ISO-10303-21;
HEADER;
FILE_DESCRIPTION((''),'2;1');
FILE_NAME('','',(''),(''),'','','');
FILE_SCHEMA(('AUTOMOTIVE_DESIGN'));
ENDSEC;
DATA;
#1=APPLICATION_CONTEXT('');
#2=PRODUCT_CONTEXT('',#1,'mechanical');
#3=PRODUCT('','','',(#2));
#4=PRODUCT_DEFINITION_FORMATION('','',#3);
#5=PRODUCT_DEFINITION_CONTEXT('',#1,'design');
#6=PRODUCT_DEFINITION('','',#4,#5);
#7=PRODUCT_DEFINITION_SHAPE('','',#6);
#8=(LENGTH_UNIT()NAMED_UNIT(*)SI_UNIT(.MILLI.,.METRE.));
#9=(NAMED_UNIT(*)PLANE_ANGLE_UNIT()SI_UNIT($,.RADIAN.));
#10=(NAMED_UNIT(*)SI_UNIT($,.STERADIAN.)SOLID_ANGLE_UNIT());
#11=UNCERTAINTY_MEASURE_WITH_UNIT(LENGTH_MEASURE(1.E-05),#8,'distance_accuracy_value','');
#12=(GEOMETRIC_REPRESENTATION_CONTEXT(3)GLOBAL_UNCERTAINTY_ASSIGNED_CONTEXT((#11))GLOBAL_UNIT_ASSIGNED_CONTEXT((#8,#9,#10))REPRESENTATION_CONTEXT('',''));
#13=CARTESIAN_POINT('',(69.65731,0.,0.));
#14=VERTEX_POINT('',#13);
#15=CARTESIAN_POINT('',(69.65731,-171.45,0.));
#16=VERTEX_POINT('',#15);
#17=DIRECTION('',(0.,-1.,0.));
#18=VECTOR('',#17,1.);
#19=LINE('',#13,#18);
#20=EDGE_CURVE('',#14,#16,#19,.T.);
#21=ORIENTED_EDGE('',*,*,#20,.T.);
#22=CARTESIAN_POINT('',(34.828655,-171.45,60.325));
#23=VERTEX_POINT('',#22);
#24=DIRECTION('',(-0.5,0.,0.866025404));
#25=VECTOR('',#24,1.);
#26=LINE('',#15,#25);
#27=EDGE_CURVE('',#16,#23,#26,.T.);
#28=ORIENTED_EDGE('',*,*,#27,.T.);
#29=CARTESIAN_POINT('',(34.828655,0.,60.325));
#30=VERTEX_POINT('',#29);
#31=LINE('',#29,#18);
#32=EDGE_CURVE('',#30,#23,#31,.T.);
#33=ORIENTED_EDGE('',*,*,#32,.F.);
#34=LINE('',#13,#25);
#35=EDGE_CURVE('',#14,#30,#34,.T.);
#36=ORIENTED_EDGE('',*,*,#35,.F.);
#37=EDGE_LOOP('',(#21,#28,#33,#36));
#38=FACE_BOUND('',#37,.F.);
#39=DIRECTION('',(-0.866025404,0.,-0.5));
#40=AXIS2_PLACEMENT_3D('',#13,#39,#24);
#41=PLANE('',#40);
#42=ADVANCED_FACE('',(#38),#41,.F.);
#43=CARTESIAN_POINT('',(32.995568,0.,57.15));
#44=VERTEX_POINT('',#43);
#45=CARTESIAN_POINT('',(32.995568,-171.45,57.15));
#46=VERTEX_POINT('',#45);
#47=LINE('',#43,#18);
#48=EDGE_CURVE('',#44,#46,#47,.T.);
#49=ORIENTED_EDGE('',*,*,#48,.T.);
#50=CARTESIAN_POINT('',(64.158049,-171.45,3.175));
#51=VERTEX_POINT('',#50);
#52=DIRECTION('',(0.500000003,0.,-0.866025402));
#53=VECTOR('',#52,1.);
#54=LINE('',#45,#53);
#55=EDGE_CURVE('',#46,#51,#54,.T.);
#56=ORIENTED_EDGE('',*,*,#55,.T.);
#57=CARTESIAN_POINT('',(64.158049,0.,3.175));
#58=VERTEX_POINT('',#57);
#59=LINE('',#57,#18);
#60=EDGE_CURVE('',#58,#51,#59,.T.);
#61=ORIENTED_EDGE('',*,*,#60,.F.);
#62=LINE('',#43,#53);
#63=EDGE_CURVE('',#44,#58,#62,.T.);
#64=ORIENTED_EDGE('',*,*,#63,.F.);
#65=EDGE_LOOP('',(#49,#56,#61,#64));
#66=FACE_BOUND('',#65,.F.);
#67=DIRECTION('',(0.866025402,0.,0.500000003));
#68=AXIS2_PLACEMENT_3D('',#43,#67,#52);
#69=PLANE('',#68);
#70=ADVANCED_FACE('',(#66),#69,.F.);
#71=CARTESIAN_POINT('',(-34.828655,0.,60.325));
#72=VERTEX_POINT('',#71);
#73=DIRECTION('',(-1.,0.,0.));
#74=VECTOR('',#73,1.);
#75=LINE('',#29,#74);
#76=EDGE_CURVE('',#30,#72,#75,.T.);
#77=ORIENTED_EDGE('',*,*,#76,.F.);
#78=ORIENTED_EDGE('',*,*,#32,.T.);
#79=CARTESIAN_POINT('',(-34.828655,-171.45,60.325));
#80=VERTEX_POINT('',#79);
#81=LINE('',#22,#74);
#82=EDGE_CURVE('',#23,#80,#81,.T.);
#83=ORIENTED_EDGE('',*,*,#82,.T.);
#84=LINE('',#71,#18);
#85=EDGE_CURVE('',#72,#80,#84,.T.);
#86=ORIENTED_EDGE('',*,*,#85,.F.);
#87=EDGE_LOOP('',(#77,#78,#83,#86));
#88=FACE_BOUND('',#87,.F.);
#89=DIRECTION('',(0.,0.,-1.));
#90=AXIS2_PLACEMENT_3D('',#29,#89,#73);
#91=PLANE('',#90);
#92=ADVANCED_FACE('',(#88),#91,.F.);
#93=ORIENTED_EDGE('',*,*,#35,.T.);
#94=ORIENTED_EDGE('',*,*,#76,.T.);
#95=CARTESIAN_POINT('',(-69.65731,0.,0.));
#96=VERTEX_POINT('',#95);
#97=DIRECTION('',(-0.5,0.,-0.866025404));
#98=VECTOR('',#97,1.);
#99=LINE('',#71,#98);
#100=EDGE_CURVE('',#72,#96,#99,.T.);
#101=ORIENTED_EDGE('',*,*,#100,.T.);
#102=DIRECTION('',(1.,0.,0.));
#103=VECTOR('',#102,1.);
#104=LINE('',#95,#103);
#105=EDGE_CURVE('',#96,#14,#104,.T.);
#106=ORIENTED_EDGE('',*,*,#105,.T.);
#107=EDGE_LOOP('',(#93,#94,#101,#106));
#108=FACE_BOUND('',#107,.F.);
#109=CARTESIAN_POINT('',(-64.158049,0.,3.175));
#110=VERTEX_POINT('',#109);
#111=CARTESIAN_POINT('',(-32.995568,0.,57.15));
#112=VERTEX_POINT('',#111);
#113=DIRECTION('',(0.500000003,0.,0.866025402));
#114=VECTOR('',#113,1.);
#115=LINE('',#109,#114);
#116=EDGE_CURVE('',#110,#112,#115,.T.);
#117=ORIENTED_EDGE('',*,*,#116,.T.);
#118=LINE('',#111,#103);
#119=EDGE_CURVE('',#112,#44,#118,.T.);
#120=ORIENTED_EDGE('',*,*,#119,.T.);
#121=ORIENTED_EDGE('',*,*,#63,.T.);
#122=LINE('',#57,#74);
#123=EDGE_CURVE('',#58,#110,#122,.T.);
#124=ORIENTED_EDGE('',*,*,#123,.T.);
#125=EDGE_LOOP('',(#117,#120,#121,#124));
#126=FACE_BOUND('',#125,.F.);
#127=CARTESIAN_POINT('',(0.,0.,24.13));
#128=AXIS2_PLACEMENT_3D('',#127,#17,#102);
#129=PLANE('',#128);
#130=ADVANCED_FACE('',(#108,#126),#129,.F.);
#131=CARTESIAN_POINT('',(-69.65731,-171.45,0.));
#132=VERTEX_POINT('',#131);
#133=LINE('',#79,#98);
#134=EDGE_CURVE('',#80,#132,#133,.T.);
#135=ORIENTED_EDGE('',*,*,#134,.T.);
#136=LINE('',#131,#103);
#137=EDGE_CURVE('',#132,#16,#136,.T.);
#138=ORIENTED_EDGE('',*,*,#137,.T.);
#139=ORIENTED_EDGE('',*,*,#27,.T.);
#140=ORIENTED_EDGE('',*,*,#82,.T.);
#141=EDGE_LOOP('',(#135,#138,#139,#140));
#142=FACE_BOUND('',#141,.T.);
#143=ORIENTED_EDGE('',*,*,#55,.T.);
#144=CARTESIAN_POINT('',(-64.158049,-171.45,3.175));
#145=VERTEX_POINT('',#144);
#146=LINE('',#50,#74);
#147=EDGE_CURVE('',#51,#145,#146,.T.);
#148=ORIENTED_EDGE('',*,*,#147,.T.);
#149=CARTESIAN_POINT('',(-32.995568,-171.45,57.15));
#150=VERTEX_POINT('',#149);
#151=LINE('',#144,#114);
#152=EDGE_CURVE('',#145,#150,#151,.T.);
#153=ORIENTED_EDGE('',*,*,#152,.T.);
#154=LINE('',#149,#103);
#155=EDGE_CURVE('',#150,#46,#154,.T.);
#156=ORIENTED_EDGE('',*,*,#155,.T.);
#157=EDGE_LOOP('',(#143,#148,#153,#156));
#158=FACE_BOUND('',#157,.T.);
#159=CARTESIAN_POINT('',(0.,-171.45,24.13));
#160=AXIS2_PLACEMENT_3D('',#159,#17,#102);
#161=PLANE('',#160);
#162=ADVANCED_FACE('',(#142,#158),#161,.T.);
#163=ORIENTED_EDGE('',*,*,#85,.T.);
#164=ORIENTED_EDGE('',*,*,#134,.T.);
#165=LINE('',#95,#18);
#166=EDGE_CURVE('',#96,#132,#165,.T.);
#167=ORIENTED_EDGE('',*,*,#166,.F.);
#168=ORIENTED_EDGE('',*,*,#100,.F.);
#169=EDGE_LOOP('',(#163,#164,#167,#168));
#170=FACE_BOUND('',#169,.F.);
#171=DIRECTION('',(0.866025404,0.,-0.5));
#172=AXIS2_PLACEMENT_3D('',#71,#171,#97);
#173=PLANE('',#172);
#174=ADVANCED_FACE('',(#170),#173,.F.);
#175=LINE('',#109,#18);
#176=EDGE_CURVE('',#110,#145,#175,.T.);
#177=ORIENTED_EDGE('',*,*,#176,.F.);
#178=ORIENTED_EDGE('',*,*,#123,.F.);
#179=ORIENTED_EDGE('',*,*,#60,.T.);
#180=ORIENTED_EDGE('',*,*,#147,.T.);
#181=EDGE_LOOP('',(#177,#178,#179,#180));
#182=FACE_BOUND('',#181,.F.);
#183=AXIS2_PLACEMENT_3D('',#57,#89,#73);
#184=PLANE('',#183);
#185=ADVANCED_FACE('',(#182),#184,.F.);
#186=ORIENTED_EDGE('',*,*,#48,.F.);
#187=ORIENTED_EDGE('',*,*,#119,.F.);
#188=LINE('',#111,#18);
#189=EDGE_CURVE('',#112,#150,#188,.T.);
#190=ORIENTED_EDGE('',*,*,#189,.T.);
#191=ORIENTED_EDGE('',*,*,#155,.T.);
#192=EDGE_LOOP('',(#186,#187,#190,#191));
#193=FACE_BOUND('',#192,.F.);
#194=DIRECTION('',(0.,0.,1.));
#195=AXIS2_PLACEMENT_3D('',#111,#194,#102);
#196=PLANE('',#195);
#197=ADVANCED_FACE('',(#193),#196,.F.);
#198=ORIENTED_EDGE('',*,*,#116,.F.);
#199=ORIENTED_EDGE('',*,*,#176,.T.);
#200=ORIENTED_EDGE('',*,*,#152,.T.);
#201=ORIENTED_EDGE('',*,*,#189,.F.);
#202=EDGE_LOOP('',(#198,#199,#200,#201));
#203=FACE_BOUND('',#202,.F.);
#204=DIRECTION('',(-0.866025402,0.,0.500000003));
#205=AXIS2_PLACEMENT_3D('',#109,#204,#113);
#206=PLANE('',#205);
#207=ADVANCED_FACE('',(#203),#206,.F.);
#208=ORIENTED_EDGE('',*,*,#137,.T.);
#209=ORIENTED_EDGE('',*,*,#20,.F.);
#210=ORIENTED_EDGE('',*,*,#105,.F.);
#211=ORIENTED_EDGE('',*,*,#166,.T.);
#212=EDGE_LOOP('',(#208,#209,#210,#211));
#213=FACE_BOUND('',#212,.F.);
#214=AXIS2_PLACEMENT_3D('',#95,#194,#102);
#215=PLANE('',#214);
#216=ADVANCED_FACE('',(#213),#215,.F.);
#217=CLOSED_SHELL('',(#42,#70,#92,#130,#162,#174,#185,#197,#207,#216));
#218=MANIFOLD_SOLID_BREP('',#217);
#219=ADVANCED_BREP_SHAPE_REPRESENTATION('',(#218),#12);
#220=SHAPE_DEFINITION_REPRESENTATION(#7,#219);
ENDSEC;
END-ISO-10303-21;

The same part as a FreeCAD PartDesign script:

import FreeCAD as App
import Part
import Sketcher
Q = App.Units.Quantity


def add_polygon(sketch, points):
    """Adds a closed chain of lines whose ends are joined by coincident constraints."""
    first, n = sketch.GeometryCount, len(points)
    for a, b in zip(points, points[1:] + points[:1]):
        sketch.addGeometry(Part.LineSegment(App.Vector(*a, 0), App.Vector(*b, 0)), False)
    for i in range(n):
        sketch.addConstraint(Sketcher.Constraint("Coincident", first + i, 2, first + (i + 1) % n, 1))

doc = App.newDocument("Part")
params = doc.addObject("Spreadsheet::Sheet", "Params")
for row, (alias, value) in enumerate([
    ("pad1_length", "6.75 in"),
], start=1):
    params.set(f"A{row}", alias)
    params.set(f"B{row}", "=" + value)
    params.setAlias(f"B{row}", alias)

body = doc.addObject("PartDesign::Body", "Body")

# Sketch on XZ plane
sketch1 = body.newObject("Sketcher::SketchObject", "Sketch")
sketch1.AttachmentSupport = (doc.getObject("XZ_Plane"), [""])
sketch1.MapMode = "FlatFace"
add_polygon(sketch1, [(35, 60), (-35, 60), (-70, 0), (70, 0)])  # lines 0-3
add_polygon(sketch1, [(64, 3), (-64, 3), (-33, 57), (33, 57)])  # lines 4-7
sketch1.addConstraint(Sketcher.Constraint("Horizontal", 0))
sketch1.addConstraint(Sketcher.Constraint("Horizontal", 2))
sketch1.addConstraint(Sketcher.Constraint("Horizontal", 4))
sketch1.addConstraint(Sketcher.Constraint("Horizontal", 6))
sketch1.addConstraint(Sketcher.Constraint("Symmetric", 1, 2, 2, 2, -1, 1))
sketch1.addConstraint(Sketcher.Constraint("Parallel", 1, 5))
sketch1.addConstraint(Sketcher.Constraint("Parallel", 3, 7))
sketch1.addConstraint(Sketcher.Constraint("Equal", 1, 3))
sketch1.addConstraint(Sketcher.Constraint("Angle", 1, Q("-120 deg")))
sketch1.addConstraint(Sketcher.Constraint("DistanceY", -1, 1, 5, 2, Q("2.25 in")))
sketch1.addConstraint(Sketcher.Constraint("DistanceY", 4, 2, 0, 2, Q("2.25 in")))
sketch1.addConstraint(Sketcher.Constraint("DistanceY", -1, 1, 0, 2, Q("2.375 in")))
sketch1.addConstraint(Sketcher.Constraint("DistanceX", 4, 2, 4, 1, 128.316098))
sketch1.addConstraint(Sketcher.Constraint("DistanceX", 0, 2, 0, 1, 69.65731))
sketch1.addConstraint(Sketcher.Constraint("DistanceX", 4, 2, -1, 1, 64.158049))
pad1 = body.newObject("PartDesign::Pad", "Pad")
pad1.Profile = sketch1
pad1.setExpression("Length", "Params.pad1_length")

doc.recompute()
